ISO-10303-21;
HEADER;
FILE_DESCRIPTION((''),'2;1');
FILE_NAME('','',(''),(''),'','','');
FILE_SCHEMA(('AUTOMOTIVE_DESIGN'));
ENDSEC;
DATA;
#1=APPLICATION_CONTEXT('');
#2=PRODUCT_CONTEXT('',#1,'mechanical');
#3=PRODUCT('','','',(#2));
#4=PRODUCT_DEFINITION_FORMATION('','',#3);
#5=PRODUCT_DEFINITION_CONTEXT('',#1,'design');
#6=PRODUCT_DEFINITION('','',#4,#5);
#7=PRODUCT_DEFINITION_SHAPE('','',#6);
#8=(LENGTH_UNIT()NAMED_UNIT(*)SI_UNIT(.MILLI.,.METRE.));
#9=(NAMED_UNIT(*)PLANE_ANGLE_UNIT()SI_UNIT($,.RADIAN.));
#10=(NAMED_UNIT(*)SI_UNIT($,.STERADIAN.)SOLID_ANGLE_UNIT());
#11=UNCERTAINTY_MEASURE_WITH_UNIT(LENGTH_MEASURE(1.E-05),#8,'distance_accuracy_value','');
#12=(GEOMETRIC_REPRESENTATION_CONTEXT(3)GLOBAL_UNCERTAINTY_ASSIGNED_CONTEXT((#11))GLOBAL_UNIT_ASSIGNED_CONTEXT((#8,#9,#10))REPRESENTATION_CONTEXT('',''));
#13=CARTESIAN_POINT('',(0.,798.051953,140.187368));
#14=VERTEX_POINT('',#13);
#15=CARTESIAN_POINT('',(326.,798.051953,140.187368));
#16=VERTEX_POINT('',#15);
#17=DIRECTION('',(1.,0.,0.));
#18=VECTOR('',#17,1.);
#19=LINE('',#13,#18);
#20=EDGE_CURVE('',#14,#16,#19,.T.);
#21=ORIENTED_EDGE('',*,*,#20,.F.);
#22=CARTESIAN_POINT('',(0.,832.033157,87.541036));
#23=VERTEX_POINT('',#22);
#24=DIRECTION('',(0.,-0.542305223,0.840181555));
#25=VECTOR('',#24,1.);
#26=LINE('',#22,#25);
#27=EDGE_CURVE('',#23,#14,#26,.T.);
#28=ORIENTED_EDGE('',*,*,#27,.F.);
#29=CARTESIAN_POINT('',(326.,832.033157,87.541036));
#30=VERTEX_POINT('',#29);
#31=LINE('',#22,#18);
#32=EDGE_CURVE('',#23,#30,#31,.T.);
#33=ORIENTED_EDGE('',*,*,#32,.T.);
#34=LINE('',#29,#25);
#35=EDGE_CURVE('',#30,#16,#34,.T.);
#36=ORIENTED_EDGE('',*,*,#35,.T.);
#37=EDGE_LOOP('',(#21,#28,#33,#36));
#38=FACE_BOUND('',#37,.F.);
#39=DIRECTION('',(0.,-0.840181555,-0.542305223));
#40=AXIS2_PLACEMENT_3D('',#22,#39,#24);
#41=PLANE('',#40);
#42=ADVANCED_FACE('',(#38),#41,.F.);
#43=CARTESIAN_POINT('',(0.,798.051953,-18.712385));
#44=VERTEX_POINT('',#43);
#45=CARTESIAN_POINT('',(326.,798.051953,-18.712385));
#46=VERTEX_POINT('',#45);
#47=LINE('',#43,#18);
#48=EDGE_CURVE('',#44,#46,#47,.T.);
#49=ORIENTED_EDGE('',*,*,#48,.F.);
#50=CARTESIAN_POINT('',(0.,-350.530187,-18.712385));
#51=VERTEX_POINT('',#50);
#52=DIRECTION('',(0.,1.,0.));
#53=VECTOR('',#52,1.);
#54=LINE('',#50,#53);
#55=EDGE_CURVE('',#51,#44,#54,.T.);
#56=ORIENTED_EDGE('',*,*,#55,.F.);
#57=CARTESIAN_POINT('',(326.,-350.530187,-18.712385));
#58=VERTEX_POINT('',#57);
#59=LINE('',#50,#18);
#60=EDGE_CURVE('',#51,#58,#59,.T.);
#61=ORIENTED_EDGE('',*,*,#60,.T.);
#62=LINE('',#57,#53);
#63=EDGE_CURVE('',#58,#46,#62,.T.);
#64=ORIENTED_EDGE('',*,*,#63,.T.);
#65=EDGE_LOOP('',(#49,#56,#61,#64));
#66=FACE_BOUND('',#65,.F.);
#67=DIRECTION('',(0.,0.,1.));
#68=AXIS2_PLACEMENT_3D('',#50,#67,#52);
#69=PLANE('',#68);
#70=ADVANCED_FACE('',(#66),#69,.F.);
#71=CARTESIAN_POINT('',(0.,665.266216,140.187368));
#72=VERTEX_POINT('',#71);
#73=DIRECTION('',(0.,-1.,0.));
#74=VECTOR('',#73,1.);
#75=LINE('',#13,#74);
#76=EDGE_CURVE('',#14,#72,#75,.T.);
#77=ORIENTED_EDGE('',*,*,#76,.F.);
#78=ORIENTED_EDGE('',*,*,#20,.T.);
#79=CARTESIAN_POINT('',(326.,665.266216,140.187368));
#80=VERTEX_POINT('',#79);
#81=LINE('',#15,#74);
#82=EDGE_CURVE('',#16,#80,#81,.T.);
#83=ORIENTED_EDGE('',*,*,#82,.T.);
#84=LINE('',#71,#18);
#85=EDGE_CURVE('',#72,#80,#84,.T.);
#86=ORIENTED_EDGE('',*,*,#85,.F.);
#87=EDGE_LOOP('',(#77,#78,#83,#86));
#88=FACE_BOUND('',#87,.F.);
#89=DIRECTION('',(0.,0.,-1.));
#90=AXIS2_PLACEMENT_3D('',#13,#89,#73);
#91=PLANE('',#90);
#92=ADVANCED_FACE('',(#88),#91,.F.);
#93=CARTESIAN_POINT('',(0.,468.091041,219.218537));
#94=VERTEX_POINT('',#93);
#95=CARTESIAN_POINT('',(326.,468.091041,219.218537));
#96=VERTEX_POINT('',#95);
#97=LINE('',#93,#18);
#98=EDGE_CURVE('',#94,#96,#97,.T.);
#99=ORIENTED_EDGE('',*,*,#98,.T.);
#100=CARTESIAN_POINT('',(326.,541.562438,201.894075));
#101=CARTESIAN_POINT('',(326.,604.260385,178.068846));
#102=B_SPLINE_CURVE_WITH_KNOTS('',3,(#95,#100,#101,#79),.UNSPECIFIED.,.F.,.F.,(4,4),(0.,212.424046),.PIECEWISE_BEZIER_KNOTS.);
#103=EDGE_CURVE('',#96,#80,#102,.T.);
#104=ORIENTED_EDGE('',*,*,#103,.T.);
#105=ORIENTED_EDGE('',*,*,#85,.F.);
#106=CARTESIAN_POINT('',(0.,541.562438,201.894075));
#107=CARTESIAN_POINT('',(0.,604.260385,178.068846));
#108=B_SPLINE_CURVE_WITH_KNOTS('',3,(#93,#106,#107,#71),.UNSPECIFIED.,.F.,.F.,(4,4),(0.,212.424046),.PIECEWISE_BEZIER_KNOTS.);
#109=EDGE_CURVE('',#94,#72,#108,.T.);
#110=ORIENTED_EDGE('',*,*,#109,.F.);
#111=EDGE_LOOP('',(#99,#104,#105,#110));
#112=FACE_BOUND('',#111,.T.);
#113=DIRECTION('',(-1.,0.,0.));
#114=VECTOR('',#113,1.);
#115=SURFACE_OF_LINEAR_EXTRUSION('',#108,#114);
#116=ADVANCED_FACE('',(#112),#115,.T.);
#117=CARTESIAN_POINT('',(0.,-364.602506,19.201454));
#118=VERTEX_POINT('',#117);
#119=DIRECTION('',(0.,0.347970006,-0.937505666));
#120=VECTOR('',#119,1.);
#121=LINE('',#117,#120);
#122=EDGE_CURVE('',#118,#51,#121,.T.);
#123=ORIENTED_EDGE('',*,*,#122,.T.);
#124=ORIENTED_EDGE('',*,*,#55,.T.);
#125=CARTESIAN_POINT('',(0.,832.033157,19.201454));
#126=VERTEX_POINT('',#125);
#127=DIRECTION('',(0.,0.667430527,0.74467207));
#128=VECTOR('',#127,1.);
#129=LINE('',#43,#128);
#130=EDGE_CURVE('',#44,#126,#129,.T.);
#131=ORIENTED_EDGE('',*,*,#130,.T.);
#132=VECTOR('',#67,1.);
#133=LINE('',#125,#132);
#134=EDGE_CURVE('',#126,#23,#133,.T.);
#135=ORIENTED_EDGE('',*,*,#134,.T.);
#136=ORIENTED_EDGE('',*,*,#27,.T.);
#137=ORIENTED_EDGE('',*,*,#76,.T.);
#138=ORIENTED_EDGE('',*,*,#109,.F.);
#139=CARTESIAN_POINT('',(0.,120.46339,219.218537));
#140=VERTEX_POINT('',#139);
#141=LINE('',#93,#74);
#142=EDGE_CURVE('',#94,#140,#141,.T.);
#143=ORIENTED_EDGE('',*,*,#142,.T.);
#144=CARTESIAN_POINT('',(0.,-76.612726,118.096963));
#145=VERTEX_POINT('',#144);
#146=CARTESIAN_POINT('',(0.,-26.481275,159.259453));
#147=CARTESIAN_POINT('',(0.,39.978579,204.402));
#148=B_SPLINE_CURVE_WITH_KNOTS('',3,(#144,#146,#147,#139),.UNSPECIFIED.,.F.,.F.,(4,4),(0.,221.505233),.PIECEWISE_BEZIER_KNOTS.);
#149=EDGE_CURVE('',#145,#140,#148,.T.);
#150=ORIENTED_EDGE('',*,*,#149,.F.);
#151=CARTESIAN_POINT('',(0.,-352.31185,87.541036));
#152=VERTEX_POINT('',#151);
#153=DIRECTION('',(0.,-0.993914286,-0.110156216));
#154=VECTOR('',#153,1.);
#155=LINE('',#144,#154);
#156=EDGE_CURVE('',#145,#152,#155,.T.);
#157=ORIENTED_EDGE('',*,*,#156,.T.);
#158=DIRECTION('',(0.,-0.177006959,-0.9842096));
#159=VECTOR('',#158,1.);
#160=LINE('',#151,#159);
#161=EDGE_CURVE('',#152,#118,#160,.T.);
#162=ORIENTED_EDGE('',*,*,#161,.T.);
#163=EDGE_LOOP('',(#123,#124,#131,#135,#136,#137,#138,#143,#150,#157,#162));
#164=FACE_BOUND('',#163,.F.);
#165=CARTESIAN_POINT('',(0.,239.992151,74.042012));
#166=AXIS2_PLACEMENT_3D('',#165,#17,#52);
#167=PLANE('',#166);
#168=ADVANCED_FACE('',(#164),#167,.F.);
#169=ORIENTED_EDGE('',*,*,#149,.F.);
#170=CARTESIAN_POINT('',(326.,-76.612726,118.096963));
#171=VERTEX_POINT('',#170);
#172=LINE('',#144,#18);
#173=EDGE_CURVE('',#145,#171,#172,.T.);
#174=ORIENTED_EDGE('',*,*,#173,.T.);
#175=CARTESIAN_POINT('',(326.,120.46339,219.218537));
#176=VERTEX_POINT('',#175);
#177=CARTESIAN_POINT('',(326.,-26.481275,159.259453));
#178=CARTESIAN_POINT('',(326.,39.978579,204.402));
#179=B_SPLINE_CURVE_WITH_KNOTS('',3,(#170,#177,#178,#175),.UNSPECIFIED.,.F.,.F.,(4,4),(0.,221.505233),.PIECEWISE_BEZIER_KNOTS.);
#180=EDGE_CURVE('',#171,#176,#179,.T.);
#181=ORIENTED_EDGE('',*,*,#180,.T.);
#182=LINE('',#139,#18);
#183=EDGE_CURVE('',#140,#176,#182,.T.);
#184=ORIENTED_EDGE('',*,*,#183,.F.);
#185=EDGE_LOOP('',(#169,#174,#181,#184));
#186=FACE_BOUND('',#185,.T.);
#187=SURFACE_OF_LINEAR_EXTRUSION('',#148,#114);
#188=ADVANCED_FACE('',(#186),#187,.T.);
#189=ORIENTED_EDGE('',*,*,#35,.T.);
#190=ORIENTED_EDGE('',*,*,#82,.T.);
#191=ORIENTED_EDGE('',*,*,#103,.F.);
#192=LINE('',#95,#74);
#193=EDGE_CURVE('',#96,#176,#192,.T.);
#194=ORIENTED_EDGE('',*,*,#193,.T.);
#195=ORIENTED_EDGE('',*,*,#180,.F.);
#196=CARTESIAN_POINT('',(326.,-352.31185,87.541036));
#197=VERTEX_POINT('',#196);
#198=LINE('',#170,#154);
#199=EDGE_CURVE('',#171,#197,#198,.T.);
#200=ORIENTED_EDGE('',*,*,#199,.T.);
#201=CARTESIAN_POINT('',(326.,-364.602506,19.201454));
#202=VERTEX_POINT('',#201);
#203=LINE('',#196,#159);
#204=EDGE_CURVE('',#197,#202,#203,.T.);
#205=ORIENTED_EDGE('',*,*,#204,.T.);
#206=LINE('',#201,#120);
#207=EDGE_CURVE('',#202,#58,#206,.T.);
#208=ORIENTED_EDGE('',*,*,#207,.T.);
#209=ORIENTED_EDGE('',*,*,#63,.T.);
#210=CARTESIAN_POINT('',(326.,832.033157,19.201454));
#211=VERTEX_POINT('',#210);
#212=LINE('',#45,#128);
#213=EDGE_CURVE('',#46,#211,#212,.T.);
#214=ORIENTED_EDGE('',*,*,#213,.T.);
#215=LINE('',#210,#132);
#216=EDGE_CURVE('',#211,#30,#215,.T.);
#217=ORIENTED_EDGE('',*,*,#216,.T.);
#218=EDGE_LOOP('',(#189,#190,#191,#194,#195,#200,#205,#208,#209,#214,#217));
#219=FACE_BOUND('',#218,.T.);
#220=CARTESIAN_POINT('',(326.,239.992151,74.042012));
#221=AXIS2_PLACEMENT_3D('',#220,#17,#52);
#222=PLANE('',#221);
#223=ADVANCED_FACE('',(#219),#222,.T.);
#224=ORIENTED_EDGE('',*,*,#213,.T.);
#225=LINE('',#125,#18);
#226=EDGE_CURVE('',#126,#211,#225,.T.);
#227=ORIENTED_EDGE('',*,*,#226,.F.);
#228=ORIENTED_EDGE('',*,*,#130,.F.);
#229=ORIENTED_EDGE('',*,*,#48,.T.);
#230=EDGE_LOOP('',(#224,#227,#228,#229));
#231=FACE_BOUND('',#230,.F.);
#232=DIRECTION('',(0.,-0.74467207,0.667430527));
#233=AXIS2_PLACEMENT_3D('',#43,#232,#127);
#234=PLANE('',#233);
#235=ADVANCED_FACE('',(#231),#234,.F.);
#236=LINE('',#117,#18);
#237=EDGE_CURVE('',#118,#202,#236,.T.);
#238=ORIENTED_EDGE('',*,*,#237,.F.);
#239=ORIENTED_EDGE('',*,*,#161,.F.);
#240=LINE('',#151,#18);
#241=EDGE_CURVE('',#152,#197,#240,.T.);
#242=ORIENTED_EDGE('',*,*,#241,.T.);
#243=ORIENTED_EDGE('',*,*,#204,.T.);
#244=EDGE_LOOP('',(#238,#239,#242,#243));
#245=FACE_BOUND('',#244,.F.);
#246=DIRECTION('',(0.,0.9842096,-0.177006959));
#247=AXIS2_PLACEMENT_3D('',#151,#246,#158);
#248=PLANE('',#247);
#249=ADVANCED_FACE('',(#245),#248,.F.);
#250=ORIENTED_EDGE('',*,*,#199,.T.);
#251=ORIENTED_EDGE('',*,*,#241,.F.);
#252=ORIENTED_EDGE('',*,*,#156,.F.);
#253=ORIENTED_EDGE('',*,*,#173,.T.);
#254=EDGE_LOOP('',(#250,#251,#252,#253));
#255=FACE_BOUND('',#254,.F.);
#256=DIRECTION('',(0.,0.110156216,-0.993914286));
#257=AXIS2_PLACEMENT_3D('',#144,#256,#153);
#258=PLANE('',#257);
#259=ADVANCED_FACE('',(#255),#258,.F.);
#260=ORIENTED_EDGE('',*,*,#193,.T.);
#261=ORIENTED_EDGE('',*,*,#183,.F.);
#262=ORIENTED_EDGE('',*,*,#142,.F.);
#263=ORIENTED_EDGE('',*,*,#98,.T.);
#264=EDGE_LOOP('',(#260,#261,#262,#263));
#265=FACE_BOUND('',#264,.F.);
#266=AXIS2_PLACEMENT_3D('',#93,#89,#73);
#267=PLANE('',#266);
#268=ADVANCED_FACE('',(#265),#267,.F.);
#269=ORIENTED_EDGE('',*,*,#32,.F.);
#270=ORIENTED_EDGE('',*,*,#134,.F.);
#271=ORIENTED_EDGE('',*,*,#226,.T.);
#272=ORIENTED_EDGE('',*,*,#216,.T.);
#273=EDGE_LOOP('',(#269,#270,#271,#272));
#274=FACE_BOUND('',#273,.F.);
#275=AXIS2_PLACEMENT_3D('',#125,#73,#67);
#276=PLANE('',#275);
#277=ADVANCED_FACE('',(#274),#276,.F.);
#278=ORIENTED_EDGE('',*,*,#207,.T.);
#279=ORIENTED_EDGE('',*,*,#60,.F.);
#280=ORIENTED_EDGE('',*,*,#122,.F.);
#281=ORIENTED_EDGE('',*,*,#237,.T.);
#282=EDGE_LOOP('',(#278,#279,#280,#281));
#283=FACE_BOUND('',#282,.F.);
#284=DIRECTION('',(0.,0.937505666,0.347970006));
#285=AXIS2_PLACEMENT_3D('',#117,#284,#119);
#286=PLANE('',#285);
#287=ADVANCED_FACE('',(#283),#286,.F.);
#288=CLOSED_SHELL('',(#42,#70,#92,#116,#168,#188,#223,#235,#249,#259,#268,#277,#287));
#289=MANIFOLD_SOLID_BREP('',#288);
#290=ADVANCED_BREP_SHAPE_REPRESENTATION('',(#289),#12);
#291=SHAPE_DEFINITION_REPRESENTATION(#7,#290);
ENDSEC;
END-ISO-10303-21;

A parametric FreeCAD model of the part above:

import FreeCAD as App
import Part
import Sketcher
from FreeCAD import Vector

doc = App.newDocument("Part")
body = doc.addObject("PartDesign::Body", "Body")

# Sketch on YZ plane
sketch1 = body.newObject("Sketcher::SketchObject", "Sketch")
sketch1.AttachmentSupport = (doc.getObject("YZ_Plane"), [""])
sketch1.MapMode = "FlatFace"
sketch1.addGeometry([
    Part.LineSegment(Vector(-76.612726, 118.096963, 0), Vector(-352.31185, 87.541036, 0)),  # 0
    Part.LineSegment(Vector(-352.31185, 87.541036, 0), Vector(-364.602506, 19.201454, 0)),  # 1
    Part.LineSegment(Vector(-364.602506, 19.201454, 0), Vector(-350.530187, -18.712385, 0)),  # 2
    Part.LineSegment(Vector(-350.530187, -18.712385, 0), Vector(798.051953, -18.712385, 0)),  # 3
    Part.LineSegment(Vector(798.051953, -18.712385, 0), Vector(832.033157, 19.201454, 0)),  # 4
    Part.LineSegment(Vector(832.033157, 19.201454, 0), Vector(832.033157, 87.541036, 0)),  # 5
    Part.LineSegment(Vector(832.033157, 87.541036, 0), Vector(798.051953, 140.187368, 0)),  # 6
    Part.LineSegment(Vector(798.051953, 140.187368, 0), Vector(665.266216, 140.187368, 0)),  # 7
    Part.BSplineCurve([Vector(468.091041, 219.218537, 0), Vector(541.562438, 201.894075, 0), Vector(604.260385, 178.068846, 0), Vector(665.266216, 140.187368, 0)], [4, 4], [0, 212.424046], False, 3, [1, 1, 1, 1], False),  # 8
    Part.LineSegment(Vector(468.091041, 219.218537, 0), Vector(120.46339, 219.218537, 0)),  # 9
    Part.BSplineCurve([Vector(-76.612726, 118.096963, 0), Vector(-26.481275, 159.259453, 0), Vector(39.978579, 204.402, 0), Vector(120.46339, 219.218537, 0)], [4, 4], [0, 221.505233], False, 3, [1, 1, 1, 1], False),  # 10
], False)
sketch1.addConstraint([
    Sketcher.Constraint("Block", 8),
    Sketcher.Constraint("Block", 10),
    Sketcher.Constraint("Coincident", 0, 2, 1, 1),
    Sketcher.Constraint("Coincident", 1, 2, 2, 1),
    Sketcher.Constraint("Coincident", 2, 2, 3, 1),
    Sketcher.Constraint("Coincident", 3, 2, 4, 1),
    Sketcher.Constraint("Coincident", 4, 2, 5, 1),
    Sketcher.Constraint("Coincident", 5, 2, 6, 1),
    Sketcher.Constraint("Coincident", 6, 2, 7, 1),
    Sketcher.Constraint("Coincident", 7, 2, 8, 2),
    Sketcher.Constraint("Coincident", 8, 1, 9, 1),
    Sketcher.Constraint("Coincident", 9, 2, 10, 2),
    Sketcher.Constraint("Coincident", 10, 1, 0, 1),
    Sketcher.Constraint("Horizontal", 3),
    Sketcher.Constraint("Vertical", 5),
    Sketcher.Constraint("Horizontal", 7),
    Sketcher.Constraint("Horizontal", 1, 2, 4, 2),
    Sketcher.Constraint("Horizontal", 0, 2, 5, 2),
    Sketcher.Constraint("Vertical", 3, 2, 6, 2),
    Sketcher.Constraint("DistanceX", 3, 1, 3, 2, 1148.58214),
    Sketcher.Constraint("DistanceY", 0, 2, 9, 2, 131.677501),
    Sketcher.Constraint("Distance", 4, 50.91347),
    Sketcher.Constraint("Distance", 6, 62.660661),
    Sketcher.Constraint("DistanceX", 7, 2, 7, 1, 132.785737),
    Sketcher.Constraint("DistanceY", 5, 1, 5, 2, 68.339582),
    Sketcher.Constraint("DistanceX", 0, 2, -1, 1, 352.31185),
    Sketcher.Constraint("DistanceX", 1, 2, 2, 2, 14.072319),
])
pad1 = body.newObject("PartDesign::Pad", "Pad")
pad1.Profile = sketch1
pad1.Length = 326

doc.recompute()
